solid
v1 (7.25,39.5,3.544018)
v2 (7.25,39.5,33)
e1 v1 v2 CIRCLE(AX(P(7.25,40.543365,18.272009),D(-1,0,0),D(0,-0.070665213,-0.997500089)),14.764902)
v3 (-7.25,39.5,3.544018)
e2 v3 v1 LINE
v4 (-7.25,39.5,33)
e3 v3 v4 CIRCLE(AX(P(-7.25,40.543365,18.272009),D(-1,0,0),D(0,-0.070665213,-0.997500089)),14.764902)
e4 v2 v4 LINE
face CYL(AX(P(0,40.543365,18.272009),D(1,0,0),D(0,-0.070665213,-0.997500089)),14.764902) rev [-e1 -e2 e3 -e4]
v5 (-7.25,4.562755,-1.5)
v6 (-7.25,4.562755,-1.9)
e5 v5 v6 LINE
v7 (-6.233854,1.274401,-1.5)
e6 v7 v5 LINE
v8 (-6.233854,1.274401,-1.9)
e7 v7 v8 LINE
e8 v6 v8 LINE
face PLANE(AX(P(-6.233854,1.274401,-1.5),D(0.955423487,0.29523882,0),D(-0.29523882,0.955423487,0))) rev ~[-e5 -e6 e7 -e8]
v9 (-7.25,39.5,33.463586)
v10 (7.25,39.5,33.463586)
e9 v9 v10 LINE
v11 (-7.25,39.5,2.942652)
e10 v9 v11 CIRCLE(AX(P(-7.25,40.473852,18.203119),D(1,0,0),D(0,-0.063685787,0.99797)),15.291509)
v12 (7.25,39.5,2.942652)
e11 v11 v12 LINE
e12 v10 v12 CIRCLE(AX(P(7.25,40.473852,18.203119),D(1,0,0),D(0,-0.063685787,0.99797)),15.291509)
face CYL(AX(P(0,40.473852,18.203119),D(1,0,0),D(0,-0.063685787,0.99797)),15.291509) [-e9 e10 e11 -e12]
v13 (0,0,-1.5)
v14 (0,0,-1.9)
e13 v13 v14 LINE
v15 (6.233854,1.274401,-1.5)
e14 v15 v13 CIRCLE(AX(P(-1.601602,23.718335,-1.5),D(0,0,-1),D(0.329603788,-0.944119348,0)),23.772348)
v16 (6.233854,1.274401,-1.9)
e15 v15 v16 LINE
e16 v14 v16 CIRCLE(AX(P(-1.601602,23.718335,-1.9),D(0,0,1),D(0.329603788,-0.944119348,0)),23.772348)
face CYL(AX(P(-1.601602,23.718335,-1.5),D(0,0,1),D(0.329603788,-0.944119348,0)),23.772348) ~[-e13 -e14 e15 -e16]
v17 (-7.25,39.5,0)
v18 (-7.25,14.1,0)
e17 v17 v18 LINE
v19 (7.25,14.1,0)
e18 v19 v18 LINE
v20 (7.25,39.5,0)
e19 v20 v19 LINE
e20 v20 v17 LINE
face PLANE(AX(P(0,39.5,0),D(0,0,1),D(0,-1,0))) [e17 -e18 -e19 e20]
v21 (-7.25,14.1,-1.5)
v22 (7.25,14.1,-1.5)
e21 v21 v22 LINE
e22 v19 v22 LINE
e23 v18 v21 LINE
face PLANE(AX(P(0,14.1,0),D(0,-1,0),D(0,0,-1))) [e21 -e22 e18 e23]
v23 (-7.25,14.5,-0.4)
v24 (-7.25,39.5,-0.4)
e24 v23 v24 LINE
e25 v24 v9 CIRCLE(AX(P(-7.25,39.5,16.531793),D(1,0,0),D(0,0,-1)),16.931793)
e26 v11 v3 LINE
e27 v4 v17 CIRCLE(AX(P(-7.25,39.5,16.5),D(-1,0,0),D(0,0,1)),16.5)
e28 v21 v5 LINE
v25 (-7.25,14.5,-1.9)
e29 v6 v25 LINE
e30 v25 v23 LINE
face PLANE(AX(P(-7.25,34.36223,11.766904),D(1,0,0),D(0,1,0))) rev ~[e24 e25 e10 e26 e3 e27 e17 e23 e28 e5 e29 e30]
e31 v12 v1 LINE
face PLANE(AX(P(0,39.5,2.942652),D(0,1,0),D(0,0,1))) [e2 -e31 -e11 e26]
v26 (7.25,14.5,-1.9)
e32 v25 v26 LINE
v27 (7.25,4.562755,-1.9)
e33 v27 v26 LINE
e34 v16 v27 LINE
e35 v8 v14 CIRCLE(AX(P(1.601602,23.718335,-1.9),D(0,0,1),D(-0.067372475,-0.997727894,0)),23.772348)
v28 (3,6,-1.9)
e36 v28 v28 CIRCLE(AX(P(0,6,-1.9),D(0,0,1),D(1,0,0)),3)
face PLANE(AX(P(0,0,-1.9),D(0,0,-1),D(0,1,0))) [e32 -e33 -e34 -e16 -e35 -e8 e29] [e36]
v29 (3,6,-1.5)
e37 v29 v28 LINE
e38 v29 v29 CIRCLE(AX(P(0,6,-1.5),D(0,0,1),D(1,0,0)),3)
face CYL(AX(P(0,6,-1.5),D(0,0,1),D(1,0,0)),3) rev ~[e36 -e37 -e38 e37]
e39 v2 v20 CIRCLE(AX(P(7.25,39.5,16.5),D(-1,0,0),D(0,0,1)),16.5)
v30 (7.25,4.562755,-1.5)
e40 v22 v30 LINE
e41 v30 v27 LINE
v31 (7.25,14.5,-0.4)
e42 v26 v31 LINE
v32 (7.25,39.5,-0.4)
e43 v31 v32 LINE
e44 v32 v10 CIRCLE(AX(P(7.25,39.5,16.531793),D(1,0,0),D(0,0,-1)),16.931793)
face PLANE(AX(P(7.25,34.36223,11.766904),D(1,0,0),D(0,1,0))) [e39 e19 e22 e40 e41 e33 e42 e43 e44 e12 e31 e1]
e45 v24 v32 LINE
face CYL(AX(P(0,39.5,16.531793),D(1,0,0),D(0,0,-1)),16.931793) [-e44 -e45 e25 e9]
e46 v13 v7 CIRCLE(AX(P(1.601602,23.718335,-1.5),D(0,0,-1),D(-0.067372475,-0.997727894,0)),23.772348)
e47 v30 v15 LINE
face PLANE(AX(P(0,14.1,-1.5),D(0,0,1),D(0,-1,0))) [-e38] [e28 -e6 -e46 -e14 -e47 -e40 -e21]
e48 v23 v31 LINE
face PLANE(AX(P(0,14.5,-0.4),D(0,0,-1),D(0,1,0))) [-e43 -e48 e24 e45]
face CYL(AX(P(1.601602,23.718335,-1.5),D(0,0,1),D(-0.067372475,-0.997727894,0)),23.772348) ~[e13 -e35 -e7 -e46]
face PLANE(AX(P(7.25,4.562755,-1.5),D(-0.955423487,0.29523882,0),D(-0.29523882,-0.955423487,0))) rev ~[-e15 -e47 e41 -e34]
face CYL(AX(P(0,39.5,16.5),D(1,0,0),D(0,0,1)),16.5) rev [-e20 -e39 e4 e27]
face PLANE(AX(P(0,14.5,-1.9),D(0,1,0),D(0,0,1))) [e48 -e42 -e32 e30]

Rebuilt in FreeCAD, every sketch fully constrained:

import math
import FreeCAD as App
import Part
import Sketcher
from FreeCAD import Vector
Q = App.Units.Quantity

doc = App.newDocument("Part")
params = doc.addObject("Spreadsheet::Sheet", "Params")
for row, (alias, value) in enumerate([
    ("sketch1_radius", "16.5 mm"),
    ("sketch1_width", "25 mm"),
    ("sketch1_width2", "14.1 mm"),
    ("sketch1_width3", "14.5 mm"),
    ("sketch1_height", "1.5 mm"),
    ("pad1_length", "14.5 mm"),
    ("sketch2_diameter", "6 mm"),
    ("sketch2_width", "7.25 mm"),
    ("pocket1_length", "25 mm"),
], start=1):
    params.set(f"A{row}", alias)
    params.set(f"B{row}", "=" + value)
    params.setAlias(f"B{row}", alias)

body = doc.addObject("PartDesign::Body", "Body")

sketch1 = body.newObject("Sketcher::SketchObject", "Sketch")
sketch1.AttachmentSupport = (doc.getObject("YZ_Plane"), [""])
sketch1.MapMode = "FlatFace"
sketch1.addGeometry(Part.LineSegment(Vector(14.1, 0, 0), Vector(14.1, -1.5, 0)), False)
sketch1.addGeometry(Part.LineSegment(Vector(14.1, -1.5, 0), Vector(0, -1.5, 0)), False)
sketch1.addGeometry(Part.LineSegment(Vector(0, -1.5, 0), Vector(0, -1.9, 0)), False)
sketch1.addGeometry(Part.LineSegment(Vector(0, -1.9, 0), Vector(14.5, -1.9, 0)), False)
sketch1.addGeometry(Part.LineSegment(Vector(14.5, -1.9, 0), Vector(14.5, -0.4, 0)), False)
sketch1.addGeometry(Part.LineSegment(Vector(14.5, -0.4, 0), Vector(39.5, -0.4, 0)), False)
sketch1.addGeometry(Part.ArcOfCircle(Part.Circle(Vector(39.5, 16.53, 0), Vector(0, 0, 1), 16.93), math.radians(-90), math.radians(90)), False)
sketch1.addGeometry(Part.ArcOfCircle(Part.Circle(Vector(40.47, 18.2, 0), Vector(0, 0, 1), 15.29), math.radians(94), math.radians(266)), False)
sketch1.addGeometry(Part.LineSegment(Vector(39.5, 2.94, 0), Vector(39.5, 3.54, 0)), False)
sketch1.addGeometry(Part.ArcOfCircle(Part.Circle(Vector(40.54, 18.27, 0), Vector(0, 0, 1), 14.76), math.radians(94), math.radians(266)), False)
sketch1.addGeometry(Part.ArcOfCircle(Part.Circle(Vector(39.5, 16.5, 0), Vector(0, 0, 1), 16.5), math.radians(-90), math.radians(90)), False)
sketch1.addGeometry(Part.LineSegment(Vector(39.5, 0, 0), Vector(14.1, 0, 0)), False)
sketch1.addConstraint(Sketcher.Constraint("Coincident", 0, 2, 1, 1))
sketch1.addConstraint(Sketcher.Constraint("Coincident", 1, 2, 2, 1))
sketch1.addConstraint(Sketcher.Constraint("Coincident", 2, 2, 3, 1))
sketch1.addConstraint(Sketcher.Constraint("Coincident", 3, 2, 4, 1))
sketch1.addConstraint(Sketcher.Constraint("Coincident", 4, 2, 5, 1))
sketch1.addConstraint(Sketcher.Constraint("Tangent", 5, 2, 6, 1))
sketch1.addConstraint(Sketcher.Constraint("Coincident", 6, 2, 7, 1))
sketch1.addConstraint(Sketcher.Constraint("Coincident", 7, 2, 8, 1))
sketch1.addConstraint(Sketcher.Constraint("Coincident", 8, 2, 9, 2))
sketch1.addConstraint(Sketcher.Constraint("Coincident", 9, 1, 10, 2))
sketch1.addConstraint(Sketcher.Constraint("Tangent", 10, 1, 11, 1))
sketch1.addConstraint(Sketcher.Constraint("Coincident", 11, 2, 0, 1))
sketch1.addConstraint(Sketcher.Constraint("Vertical", 0))
sketch1.addConstraint(Sketcher.Constraint("Horizontal", 1))
sketch1.addConstraint(Sketcher.Constraint("Vertical", 2))
sketch1.addConstraint(Sketcher.Constraint("Horizontal", 3))
sketch1.addConstraint(Sketcher.Constraint("Vertical", 4))
sketch1.addConstraint(Sketcher.Constraint("Horizontal", 5))
sketch1.addConstraint(Sketcher.Constraint("Vertical", 8))
sketch1.addConstraint(Sketcher.Constraint("Horizontal", 11))
sketch1.addConstraint(Sketcher.Constraint("PointOnObject", 1, 2, -2))
sketch1.addConstraint(Sketcher.Constraint("PointOnObject", 10, 1, -1))
sketch1.addConstraint(Sketcher.Constraint("Vertical", 6, 3, 10, 3))
sketch1.addConstraint(Sketcher.Constraint("Vertical", 5, 2, 6, 2))
sketch1.addConstraint(Sketcher.Constraint("Vertical", 6, 2, 7, 2))
sketch1.addConstraint(Sketcher.Constraint("Vertical", 8, 2, 9, 1))
sketch1.addConstraint(Sketcher.Constraint("Equal", 0, 4))
sketch1.addConstraint(Sketcher.Constraint("Radius", 10, Q("16.5 mm")))
sketch1.addConstraint(Sketcher.Constraint("DistanceX", 5, 1, 5, 2, Q("25 mm")))
sketch1.addConstraint(Sketcher.Constraint("DistanceX", 1, 2, 1, 1, Q("14.1 mm")))
sketch1.addConstraint(Sketcher.Constraint("DistanceX", 3, 1, 3, 2, Q("14.5 mm")))
sketch1.addConstraint(Sketcher.Constraint("DistanceY", 0, 2, 0, 1, Q("1.5 mm")))
sketch1.addConstraint(Sketcher.Constraint("DistanceY", 2, 2, 2, 1, Q("0.4 mm")))
sketch1.addConstraint(Sketcher.Constraint("Radius", 9, Q("14.764902 mm")))
sketch1.addConstraint(Sketcher.Constraint("Radius", 7, Q("15.291509 mm")))
sketch1.addConstraint(Sketcher.Constraint("Radius", 6, Q("16.931793 mm")))
sketch1.addConstraint(Sketcher.Constraint("DistanceY", 8, 2, 7, 3, Q("14.659101 mm")))
sketch1.addConstraint(Sketcher.Constraint("DistanceY", 8, 1, 8, 2, Q("0.601366 mm")))
sketch1.setExpression("Constraints[27]", "Params.sketch1_radius")
sketch1.setExpression("Constraints[28]", "Params.sketch1_width")
sketch1.setExpression("Constraints[29]", "Params.sketch1_width2")
sketch1.setExpression("Constraints[30]", "Params.sketch1_width3")
sketch1.setExpression("Constraints[31]", "Params.sketch1_height")
pad1 = body.newObject("PartDesign::Pad", "Pad")
pad1.Profile = sketch1
pad1.setExpression("Length", "Params.pad1_length")
pad1.Midplane = True

sketch2 = body.newObject("Sketcher::SketchObject", "Sketch001")
sketch2.AttachmentSupport = (doc.getObject("XY_Plane"), [""])
sketch2.MapMode = "FlatFace"
sketch2.AttachmentOffset = App.Placement(Vector(0, 0, -1.5), App.Rotation())
sketch2.addGeometry(Part.ArcOfCircle(Part.Circle(Vector(-1.6, 23.7, 0), Vector(0, 0, 1), 23.8), math.radians(-86.14), math.radians(-70.76)), False)
sketch2.addGeometry(Part.LineSegment(Vector(0, 0, 0), Vector(7.2, 0, 0)), False)
sketch2.addGeometry(Part.LineSegment(Vector(7.2, 0, 0), Vector(7.2, 4.6, 0)), False)
sketch2.addGeometry(Part.LineSegment(Vector(7.2, 4.6, 0), Vector(6.2, 1.3, 0)), False)
sketch2.addGeometry(Part.ArcOfCircle(Part.Circle(Vector(1.6, 23.7, 0), Vector(0, 0, 1), 23.8), math.radians(-109.24), math.radians(-93.86)), False)
sketch2.addGeometry(Part.LineSegment(Vector(-6.2, 1.3, 0), Vector(-7.2, 4.6, 0)), False)
sketch2.addGeometry(Part.LineSegment(Vector(-7.2, 4.6, 0), Vector(-7.2, 0, 0)), False)
sketch2.addGeometry(Part.LineSegment(Vector(-7.2, 0, 0), Vector(0, 0, 0)), False)
sketch2.addGeometry(Part.Circle(Vector(0, 6, 0), Vector(0, 0, 1), 3), False)
sketch2.addConstraint(Sketcher.Constraint("Coincident", 0, 1, 1, 1))
sketch2.addConstraint(Sketcher.Constraint("Coincident", 1, 2, 2, 1))
sketch2.addConstraint(Sketcher.Constraint("Coincident", 2, 2, 3, 1))
sketch2.addConstraint(Sketcher.Constraint("Coincident", 3, 2, 0, 2))
sketch2.addConstraint(Sketcher.Constraint("Coincident", 4, 1, 5, 1))
sketch2.addConstraint(Sketcher.Constraint("Coincident", 5, 2, 6, 1))
sketch2.addConstraint(Sketcher.Constraint("Coincident", 6, 2, 7, 1))
sketch2.addConstraint(Sketcher.Constraint("Coincident", 7, 2, 4, 2))
sketch2.addConstraint(Sketcher.Constraint("Horizontal", 1))
sketch2.addConstraint(Sketcher.Constraint("Vertical", 2))
sketch2.addConstraint(Sketcher.Constraint("Vertical", 6))
sketch2.addConstraint(Sketcher.Constraint("Horizontal", 7))
sketch2.addConstraint(Sketcher.Constraint("Coincident", 0, 1, -1, 1))
sketch2.addConstraint(Sketcher.Constraint("Coincident", 7, 2, -1, 1))
sketch2.addConstraint(Sketcher.Constraint("Equal", 0, 4))
sketch2.addConstraint(Sketcher.Constraint("Symmetric", 3, 2, 4, 1, -2))
sketch2.addConstraint(Sketcher.Constraint("Symmetric", 2, 2, 5, 2, -2))
sketch2.addConstraint(Sketcher.Constraint("PointOnObject", 8, 3, -2))
sketch2.addConstraint(Sketcher.Constraint("Diameter", 8, Q("6 mm")))
sketch2.addConstraint(Sketcher.Constraint("DistanceY", -1, 1, 8, 3, Q("6 mm")))
sketch2.addConstraint(Sketcher.Constraint("DistanceX", 1, 1, 1, 2, Q("7.25 mm")))
sketch2.addConstraint(Sketcher.Constraint("Radius", 0, Q("23.772348 mm")))
sketch2.addConstraint(Sketcher.Constraint("DistanceX", 0, 3, -1, 1, Q("1.601602 mm")))
sketch2.addConstraint(Sketcher.Constraint("DistanceY", -1, 1, 3, 2, Q("1.274401 mm")))
sketch2.addConstraint(Sketcher.Constraint("DistanceY", 2, 1, 2, 2, Q("4.562755 mm")))
sketch2.setExpression("Constraints[18]", "Params.sketch2_diameter")
sketch2.setExpression("Constraints[20]", "Params.sketch2_width")
pocket1 = body.newObject("PartDesign::Pocket", "Pocket")
pocket1.Profile = sketch2
pocket1.setExpression("Length", "Params.pocket1_length")

doc.recompute()
